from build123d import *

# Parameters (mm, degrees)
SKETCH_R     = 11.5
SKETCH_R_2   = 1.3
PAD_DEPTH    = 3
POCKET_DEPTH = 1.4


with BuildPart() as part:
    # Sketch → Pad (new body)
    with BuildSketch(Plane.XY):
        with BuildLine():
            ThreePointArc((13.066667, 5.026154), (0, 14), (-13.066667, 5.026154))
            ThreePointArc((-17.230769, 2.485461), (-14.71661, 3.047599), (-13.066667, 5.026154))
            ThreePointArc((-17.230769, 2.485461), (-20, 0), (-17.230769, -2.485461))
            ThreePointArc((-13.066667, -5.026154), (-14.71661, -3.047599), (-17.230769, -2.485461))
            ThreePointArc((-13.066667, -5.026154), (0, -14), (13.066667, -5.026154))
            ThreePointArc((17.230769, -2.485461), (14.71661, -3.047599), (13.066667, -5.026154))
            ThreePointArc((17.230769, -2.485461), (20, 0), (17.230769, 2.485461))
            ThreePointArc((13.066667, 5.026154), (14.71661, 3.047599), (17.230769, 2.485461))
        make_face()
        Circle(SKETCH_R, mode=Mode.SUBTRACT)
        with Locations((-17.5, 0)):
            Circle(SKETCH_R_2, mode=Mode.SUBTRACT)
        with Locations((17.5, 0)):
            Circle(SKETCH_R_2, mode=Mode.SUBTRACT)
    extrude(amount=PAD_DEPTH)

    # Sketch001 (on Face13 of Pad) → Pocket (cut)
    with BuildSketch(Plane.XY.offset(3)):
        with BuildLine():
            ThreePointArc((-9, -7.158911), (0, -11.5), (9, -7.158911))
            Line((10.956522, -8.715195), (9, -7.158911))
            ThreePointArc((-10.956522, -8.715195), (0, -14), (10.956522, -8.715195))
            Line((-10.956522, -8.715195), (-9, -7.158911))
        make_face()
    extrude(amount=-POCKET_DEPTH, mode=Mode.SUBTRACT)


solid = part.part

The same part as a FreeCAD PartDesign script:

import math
import FreeCAD as App
import Part
import Sketcher
from FreeCAD import Vector
Q = App.Units.Quantity

doc = App.newDocument("Part")
body = doc.addObject("PartDesign::Body", "Body")

# Sketch on XY plane
sketch1 = doc.addObject("Sketcher::SketchObject", "Sketch")
body.addObject(sketch1)
sketch1.AttachmentSupport = (doc.XY_Plane, [""])
sketch1.MapMode = "FlatFace"
sketch1.addGeometry(Part.ArcOfCircle(Part.Circle(Vector(0, 0, 0), Vector(0, 0, 1), 14), math.radians(21), math.radians(159)), False)
sketch1.addGeometry(Part.ArcOfCircle(Part.Circle(Vector(-16.8, 6.5, 0), Vector(0, 0, 1), 4), math.radians(-96), math.radians(-21)), False)
sketch1.addGeometry(Part.ArcOfCircle(Part.Circle(Vector(-17.5, 0, 0), Vector(0, 0, 1), 2.5), math.radians(84), math.radians(276)), False)
sketch1.addGeometry(Part.ArcOfCircle(Part.Circle(Vector(-16.8, -6.5, 0), Vector(0, 0, 1), 4), math.radians(21), math.radians(96)), False)
sketch1.addGeometry(Part.ArcOfCircle(Part.Circle(Vector(0, 0, 0), Vector(0, 0, 1), 14), math.radians(-159), math.radians(-21)), False)
sketch1.addGeometry(Part.ArcOfCircle(Part.Circle(Vector(16.8, -6.5, 0), Vector(0, 0, 1), 4), math.radians(84), math.radians(159)), False)
sketch1.addGeometry(Part.ArcOfCircle(Part.Circle(Vector(17.5, 0, 0), Vector(0, 0, 1), 2.5), math.radians(-96), math.radians(96)), False)
sketch1.addGeometry(Part.ArcOfCircle(Part.Circle(Vector(16.8, 6.5, 0), Vector(0, 0, 1), 4), math.radians(-159), math.radians(-84)), False)
sketch1.addGeometry(Part.Circle(Vector(-17.5, 0, 0), Vector(0, 0, 1), 1.3), False)
sketch1.addGeometry(Part.Circle(Vector(0, 0, 0), Vector(0, 0, 1), 11.5), False)
sketch1.addGeometry(Part.Circle(Vector(17.5, 0, 0), Vector(0, 0, 1), 1.3), False)
sketch1.addConstraint(Sketcher.Constraint("Tangent", 0, 2, 1, 2))
sketch1.addConstraint(Sketcher.Constraint("Tangent", 1, 1, 2, 1))
sketch1.addConstraint(Sketcher.Constraint("Tangent", 2, 2, 3, 2))
sketch1.addConstraint(Sketcher.Constraint("Tangent", 3, 1, 4, 1))
sketch1.addConstraint(Sketcher.Constraint("Tangent", 4, 2, 5, 2))
sketch1.addConstraint(Sketcher.Constraint("Tangent", 5, 1, 6, 1))
sketch1.addConstraint(Sketcher.Constraint("Tangent", 6, 2, 7, 2))
sketch1.addConstraint(Sketcher.Constraint("Tangent", 7, 1, 0, 1))
sketch1.addConstraint(Sketcher.Constraint("Coincident", 0, 3, -1, 1))
sketch1.addConstraint(Sketcher.Constraint("Coincident", 4, 3, -1, 1))
sketch1.addConstraint(Sketcher.Constraint("Coincident", 9, 3, -1, 1))
sketch1.addConstraint(Sketcher.Constraint("Coincident", 8, 3, 2, 3))
sketch1.addConstraint(Sketcher.Constraint("Coincident", 10, 3, 6, 3))
sketch1.addConstraint(Sketcher.Constraint("Equal", 1, 3))
sketch1.addConstraint(Sketcher.Constraint("Equal", 0, 4))
sketch1.addConstraint(Sketcher.Constraint("Equal", 3, 5))
sketch1.addConstraint(Sketcher.Constraint("Equal", 2, 6))
sketch1.addConstraint(Sketcher.Constraint("Equal", 5, 7))
sketch1.addConstraint(Sketcher.Constraint("Equal", 8, 10))
sketch1.addConstraint(Sketcher.Constraint("Symmetric", 2, 3, 6, 3, -1, 1))
sketch1.addConstraint(Sketcher.Constraint("PointOnObject", 2, 3, -1))
sketch1.addConstraint(Sketcher.Constraint("Diameter", 9, Q("23 mm")))
sketch1.addConstraint(Sketcher.Constraint("Radius", 0, Q("14.000001 mm")))
sketch1.addConstraint(Sketcher.Constraint("Radius", 1, Q("3.999999 mm")))
sketch1.addConstraint(Sketcher.Constraint("Diameter", 8, Q("2.6 mm")))
sketch1.addConstraint(Sketcher.Constraint("Radius", 2, Q("2.5 mm")))
sketch1.addConstraint(Sketcher.Constraint("DistanceX", 1, 3, -1, 1, Q("16.8 mm")))
pad1 = doc.addObject("PartDesign::Pad", "Pad")
body.addObject(pad1)
pad1.Profile = sketch1
pad1.Length = 3

# Sketch on XY plane
sketch2 = doc.addObject("Sketcher::SketchObject", "Sketch001")
body.addObject(sketch2)
sketch2.AttachmentSupport = (doc.XY_Plane, [""])
sketch2.MapMode = "FlatFace"
sketch2.AttachmentOffset = App.Placement(Vector(0, 0, 3), App.Rotation())
sketch2.addGeometry(Part.ArcOfCircle(Part.Circle(Vector(0, 0, 0), Vector(0, 0, 1), 11.5), math.radians(-142), math.radians(-38)), False)
sketch2.addGeometry(Part.LineSegment(Vector(-9, -7.2, 0), Vector(-11, -8.7, 0)), False)
sketch2.addGeometry(Part.ArcOfCircle(Part.Circle(Vector(0, 0, 0), Vector(0, 0, 1), 14), math.radians(-142), math.radians(-38)), False)
sketch2.addGeometry(Part.LineSegment(Vector(11, -8.7, 0), Vector(9, -7.2, 0)), False)
sketch2.addConstraint(Sketcher.Constraint("Coincident", 0, 1, 1, 1))
sketch2.addConstraint(Sketcher.Constraint("Coincident", 1, 2, 2, 1))
sketch2.addConstraint(Sketcher.Constraint("Coincident", 2, 2, 3, 1))
sketch2.addConstraint(Sketcher.Constraint("Coincident", 3, 2, 0, 2))
sketch2.addConstraint(Sketcher.Constraint("Coincident", 0, 3, -1, 1))
sketch2.addConstraint(Sketcher.Constraint("Coincident", 2, 3, -1, 1))
sketch2.addConstraint(Sketcher.Constraint("Horizontal", 1, 2, 2, 2))
sketch2.addConstraint(Sketcher.Constraint("Horizontal", 0, 1, 3, 2))
sketch2.addConstraint(Sketcher.Constraint("Radius", 2, Q("14 mm")))
sketch2.addConstraint(Sketcher.Constraint("Radius", 0, Q("11.500001 mm")))
sketch2.addConstraint(Sketcher.Constraint("DistanceX", 0, 1, -1, 1, Q("9 mm")))
sketch2.addConstraint(Sketcher.Constraint("DistanceX", -1, 1, 2, 2, Q("10.956522 mm")))
pocket1 = doc.addObject("PartDesign::Pocket", "Pocket")
body.addObject(pocket1)
pocket1.Profile = sketch2
pocket1.Length = 1.4

doc.recompute()
